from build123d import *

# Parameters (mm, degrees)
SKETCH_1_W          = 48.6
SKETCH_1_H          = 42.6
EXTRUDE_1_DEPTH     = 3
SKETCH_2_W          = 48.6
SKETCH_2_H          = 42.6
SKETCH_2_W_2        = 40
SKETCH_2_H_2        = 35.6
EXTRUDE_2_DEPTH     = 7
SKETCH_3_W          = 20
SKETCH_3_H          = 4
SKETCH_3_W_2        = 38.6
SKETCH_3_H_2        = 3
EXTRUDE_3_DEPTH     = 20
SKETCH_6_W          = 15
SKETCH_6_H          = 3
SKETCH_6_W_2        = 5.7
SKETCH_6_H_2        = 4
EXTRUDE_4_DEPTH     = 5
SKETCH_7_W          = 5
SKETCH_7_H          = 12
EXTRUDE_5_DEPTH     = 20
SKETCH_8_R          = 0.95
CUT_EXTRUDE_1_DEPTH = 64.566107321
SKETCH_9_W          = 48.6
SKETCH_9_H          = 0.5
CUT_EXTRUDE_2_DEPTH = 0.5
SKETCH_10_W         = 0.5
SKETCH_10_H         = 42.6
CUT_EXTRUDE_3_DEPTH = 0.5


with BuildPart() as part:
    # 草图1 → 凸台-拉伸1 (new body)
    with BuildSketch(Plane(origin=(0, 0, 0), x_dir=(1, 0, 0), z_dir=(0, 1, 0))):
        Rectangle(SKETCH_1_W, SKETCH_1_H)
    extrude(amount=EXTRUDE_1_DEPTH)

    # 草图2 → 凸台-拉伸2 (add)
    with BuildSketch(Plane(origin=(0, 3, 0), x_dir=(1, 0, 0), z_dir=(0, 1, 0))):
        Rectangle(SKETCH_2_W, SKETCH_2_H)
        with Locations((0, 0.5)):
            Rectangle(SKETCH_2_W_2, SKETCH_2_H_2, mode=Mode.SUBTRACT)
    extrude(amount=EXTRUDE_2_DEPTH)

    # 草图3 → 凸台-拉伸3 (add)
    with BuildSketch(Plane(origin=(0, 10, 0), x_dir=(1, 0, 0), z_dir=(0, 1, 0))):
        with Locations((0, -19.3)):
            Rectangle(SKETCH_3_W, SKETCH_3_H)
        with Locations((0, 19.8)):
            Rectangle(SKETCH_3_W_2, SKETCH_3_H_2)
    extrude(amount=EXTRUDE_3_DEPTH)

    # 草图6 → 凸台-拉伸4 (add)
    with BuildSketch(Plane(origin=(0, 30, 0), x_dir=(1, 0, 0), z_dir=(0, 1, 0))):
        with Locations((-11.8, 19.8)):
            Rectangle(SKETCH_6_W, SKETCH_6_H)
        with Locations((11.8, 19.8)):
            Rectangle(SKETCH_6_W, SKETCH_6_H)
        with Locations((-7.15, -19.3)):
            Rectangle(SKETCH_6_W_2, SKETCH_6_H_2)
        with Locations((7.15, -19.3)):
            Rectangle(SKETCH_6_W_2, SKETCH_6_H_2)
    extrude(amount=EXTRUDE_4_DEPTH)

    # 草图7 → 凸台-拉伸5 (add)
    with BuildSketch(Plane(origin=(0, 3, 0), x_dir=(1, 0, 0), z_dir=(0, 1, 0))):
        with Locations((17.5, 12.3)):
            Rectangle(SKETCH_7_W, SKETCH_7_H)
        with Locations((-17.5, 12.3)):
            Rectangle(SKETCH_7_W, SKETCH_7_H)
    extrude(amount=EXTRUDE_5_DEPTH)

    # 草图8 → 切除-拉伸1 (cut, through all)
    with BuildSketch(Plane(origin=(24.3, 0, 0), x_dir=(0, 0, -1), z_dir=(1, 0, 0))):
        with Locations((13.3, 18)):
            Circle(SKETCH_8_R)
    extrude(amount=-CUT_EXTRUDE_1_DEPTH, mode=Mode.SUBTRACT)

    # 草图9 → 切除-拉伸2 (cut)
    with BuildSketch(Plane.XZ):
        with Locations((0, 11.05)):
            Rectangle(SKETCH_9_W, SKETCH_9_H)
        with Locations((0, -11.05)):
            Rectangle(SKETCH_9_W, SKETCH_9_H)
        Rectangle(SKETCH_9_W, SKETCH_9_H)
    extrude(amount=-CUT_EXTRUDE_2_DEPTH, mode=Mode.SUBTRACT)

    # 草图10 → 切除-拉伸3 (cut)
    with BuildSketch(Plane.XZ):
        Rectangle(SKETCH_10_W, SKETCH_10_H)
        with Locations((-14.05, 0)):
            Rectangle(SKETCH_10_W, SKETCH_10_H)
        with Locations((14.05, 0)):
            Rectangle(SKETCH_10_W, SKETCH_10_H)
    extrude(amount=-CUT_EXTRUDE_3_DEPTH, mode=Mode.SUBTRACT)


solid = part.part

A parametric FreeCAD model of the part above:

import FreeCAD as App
import Part
import Sketcher

V = App.Vector


def add_polygon(sketch, points):
    """Adds a closed chain of lines whose ends are joined by coincident constraints."""
    first, n = sketch.GeometryCount, len(points)
    for a, b in zip(points, points[1:] + points[:1]):
        sketch.addGeometry(Part.LineSegment(App.Vector(*a, 0), App.Vector(*b, 0)), False)
    for i in range(n):
        sketch.addConstraint(Sketcher.Constraint("Coincident", first + i, 2, first + (i + 1) % n, 1))

doc = App.newDocument("Part")
body = doc.addObject("PartDesign::Body", "Body")

# Sketch on XZ plane
sketch1 = doc.addObject("Sketcher::SketchObject", "Sketch")
body.addObject(sketch1)
sketch1.AttachmentSupport = (doc.XZ_Plane, [""])
sketch1.MapMode = "FlatFace"
add_polygon(sketch1, [(-24, -21), (-24, 21), (24, 21), (24, -21)])  # lines 0-3
sketch1.addConstraint([
    Sketcher.Constraint("Vertical", 0),
    Sketcher.Constraint("Horizontal", 1),
    Sketcher.Constraint("Vertical", 2),
    Sketcher.Constraint("Horizontal", 3),
    Sketcher.Constraint("Symmetric", 0, 2, 2, 2, -1, 1),
    Sketcher.Constraint("DistanceX", 1, 1, 1, 2, 48.6),
    Sketcher.Constraint("DistanceY", 0, 1, 0, 2, 42.6),
])
pad1 = doc.addObject("PartDesign::Pad", "Pad")
body.addObject(pad1)
pad1.Profile = sketch1
pad1.Length = 3
pad1.Reversed = True

# Sketch on XZ plane
sketch2 = doc.addObject("Sketcher::SketchObject", "Sketch001")
body.addObject(sketch2)
sketch2.AttachmentSupport = (doc.XZ_Plane, [""])
sketch2.MapMode = "FlatFace"
sketch2.AttachmentOffset = App.Placement(V(0, 0, -3), App.Rotation())
add_polygon(sketch2, [(-24, -21), (-24, 21), (24, 21), (24, -21)])  # lines 0-3
add_polygon(sketch2, [(20, 17), (-20, 17), (-20, -18), (20, -18)])  # lines 4-7
sketch2.addConstraint([
    Sketcher.Constraint("Vertical", 0),
    Sketcher.Constraint("Horizontal", 1),
    Sketcher.Constraint("Vertical", 2),
    Sketcher.Constraint("Horizontal", 3),
    Sketcher.Constraint("Horizontal", 4),
    Sketcher.Constraint("Vertical", 5),
    Sketcher.Constraint("Horizontal", 6),
    Sketcher.Constraint("Vertical", 7),
    Sketcher.Constraint("Symmetric", 0, 2, 2, 2, -1, 1),
    Sketcher.Constraint("DistanceX", 4, 2, 4, 1, 40.0),
    Sketcher.Constraint("DistanceX", 1, 1, 1, 2, 48.6),
    Sketcher.Constraint("DistanceY", 0, 1, 0, 2, 42.6),
    Sketcher.Constraint("DistanceY", 5, 2, 5, 1, 35.6),
    Sketcher.Constraint("DistanceX", 4, 2, -1, 1, 20.0),
    Sketcher.Constraint("DistanceY", 4, 2, 0, 2, 4.0),
])
pad2 = doc.addObject("PartDesign::Pad", "Pad001")
body.addObject(pad2)
pad2.Profile = sketch2
pad2.Length = 7
pad2.Reversed = True

# Sketch on XZ plane
sketch3 = doc.addObject("Sketcher::SketchObject", "Sketch002")
body.addObject(sketch3)
sketch3.AttachmentSupport = (doc.XZ_Plane, [""])
sketch3.MapMode = "FlatFace"
sketch3.AttachmentOffset = App.Placement(V(0, 0, -10), App.Rotation())
add_polygon(sketch3, [(-10, 17.3), (-10, 21.3), (10, 21.3), (10, 17.3)])  # lines 0-3
add_polygon(sketch3, [(-19.3, -21.3), (-19.3, -18.3), (19.3, -18.3), (19.3, -21.3)])  # lines 4-7
sketch3.addConstraint([
    Sketcher.Constraint("Vertical", 0),
    Sketcher.Constraint("Horizontal", 1),
    Sketcher.Constraint("Vertical", 2),
    Sketcher.Constraint("Horizontal", 3),
    Sketcher.Constraint("Vertical", 4),
    Sketcher.Constraint("Horizontal", 5),
    Sketcher.Constraint("Vertical", 6),
    Sketcher.Constraint("Horizontal", 7),
    Sketcher.Constraint("DistanceX", 1, 1, 1, 2, 20.0),
    Sketcher.Constraint("DistanceY", 0, 1, 0, 2, 4.0),
    Sketcher.Constraint("DistanceY", 4, 1, 4, 2, 3.0),
    Sketcher.Constraint("DistanceX", 5, 1, 5, 2, 38.6),
    Sketcher.Constraint("DistanceX", 0, 2, -1, 1, 10.0),
    Sketcher.Constraint("DistanceY", -1, 1, 0, 2, 21.3),
    Sketcher.Constraint("DistanceX", 4, 2, -1, 1, 19.3),
    Sketcher.Constraint("DistanceY", 4, 2, -1, 1, 18.3),
])
pad3 = doc.addObject("PartDesign::Pad", "Pad002")
body.addObject(pad3)
pad3.Profile = sketch3
pad3.Length = 20
pad3.Reversed = True

# Sketch on XZ plane
sketch4 = doc.addObject("Sketcher::SketchObject", "Sketch003")
body.addObject(sketch4)
sketch4.AttachmentSupport = (doc.XZ_Plane, [""])
sketch4.MapMode = "FlatFace"
sketch4.AttachmentOffset = App.Placement(V(0, 0, -30), App.Rotation())
add_polygon(sketch4, [(-19.3, -21.3), (-19.3, -18.3), (-4.3, -18.3), (-4.3, -21.3)])  # lines 0-3
add_polygon(sketch4, [(4.3, -21.3), (4.3, -18.3), (19.3, -18.3), (19.3, -21.3)])  # lines 4-7
add_polygon(sketch4, [(-10, 17.3), (-10, 21.3), (-4.3, 21.3), (-4.3, 17.3)])  # lines 8-11
add_polygon(sketch4, [(4.3, 17.3), (4.3, 21.3), (10, 21.3), (10, 17.3)])  # lines 12-15
sketch4.addConstraint([
    Sketcher.Constraint("Vertical", 0),
    Sketcher.Constraint("Horizontal", 1),
    Sketcher.Constraint("Vertical", 2),
    Sketcher.Constraint("Horizontal", 3),
    Sketcher.Constraint("Vertical", 4),
    Sketcher.Constraint("Horizontal", 5),
    Sketcher.Constraint("Vertical", 6),
    Sketcher.Constraint("Horizontal", 7),
    Sketcher.Constraint("Vertical", 8),
    Sketcher.Constraint("Horizontal", 9),
    Sketcher.Constraint("Vertical", 10),
    Sketcher.Constraint("Horizontal", 11),
    Sketcher.Constraint("Vertical", 12),
    Sketcher.Constraint("Horizontal", 13),
    Sketcher.Constraint("Vertical", 14),
    Sketcher.Constraint("Horizontal", 15),
    Sketcher.Constraint("Symmetric", 7, 2, 9, 2, -1, 1),
    Sketcher.Constraint("Symmetric", 2, 2, 12, 2, -1, 1),
    Sketcher.Constraint("Symmetric", 1, 2, 4, 2, -2),
    Sketcher.Constraint("Symmetric", 3, 2, 6, 2, -2),
    Sketcher.Constraint("Symmetric", 11, 2, 14, 2, -2),
    Sketcher.Constraint("DistanceX", 1, 1, 1, 2, 15.0),
    Sketcher.Constraint("DistanceY", 0, 1, 0, 2, 3.0),
    Sketcher.Constraint("DistanceY", 8, 1, 8, 2, 4.0),
    Sketcher.Constraint("DistanceX", 9, 1, 9, 2, 5.7),
    Sketcher.Constraint("DistanceX", 8, 2, -1, 1, 10.0),
    Sketcher.Constraint("DistanceY", 0, 2, -1, 1, 18.3),
])
pad4 = doc.addObject("PartDesign::Pad", "Pad003")
body.addObject(pad4)
pad4.Profile = sketch4
pad4.Length = 5
pad4.Reversed = True

# Sketch on XZ plane
sketch5 = doc.addObject("Sketcher::SketchObject", "Sketch004")
body.addObject(sketch5)
sketch5.AttachmentSupport = (doc.XZ_Plane, [""])
sketch5.MapMode = "FlatFace"
sketch5.AttachmentOffset = App.Placement(V(0, 0, -3), App.Rotation())
add_polygon(sketch5, [(15, -18), (15, -6), (20, -6), (20, -18)])  # lines 0-3
add_polygon(sketch5, [(-20, -18), (-20, -6), (-15, -6), (-15, -18)])  # lines 4-7
sketch5.addConstraint([
    Sketcher.Constraint("Vertical", 0),
    Sketcher.Constraint("Horizontal", 1),
    Sketcher.Constraint("Vertical", 2),
    Sketcher.Constraint("Horizontal", 3),
    Sketcher.Constraint("Vertical", 4),
    Sketcher.Constraint("Horizontal", 5),
    Sketcher.Constraint("Vertical", 6),
    Sketcher.Constraint("Horizontal", 7),
    Sketcher.Constraint("Symmetric", 1, 2, 4, 2, -2),
    Sketcher.Constraint("Symmetric", 3, 2, 6, 2, -2),
    Sketcher.Constraint("DistanceX", 1, 1, 1, 2, 5.0),
    Sketcher.Constraint("DistanceY", 0, 1, 0, 2, 12.0),
    Sketcher.Constraint("DistanceX", -1, 1, 0, 2, 15.0),
    Sketcher.Constraint("DistanceY", 0, 2, -1, 1, 6.3),
])
pad5 = doc.addObject("PartDesign::Pad", "Pad004")
body.addObject(pad5)
pad5.Profile = sketch5
pad5.Length = 20
pad5.Reversed = True

# Sketch on YZ plane
sketch6 = doc.addObject("Sketcher::SketchObject", "Sketch005")
body.addObject(sketch6)
sketch6.AttachmentSupport = (doc.YZ_Plane, [""])
sketch6.MapMode = "FlatFace"
sketch6.AttachmentOffset = App.Placement(V(0, 0, 24.3), App.Rotation())
sketch6.addGeometry(Part.Circle(V(18, -13.3, 0), V(0, 0, 1), 0.9), False)
sketch6.addConstraint([
    Sketcher.Constraint("Diameter", 0, 1.9),
    Sketcher.Constraint("DistanceX", -1, 1, 0, 3, 18.0),
    Sketcher.Constraint("DistanceY", 0, 3, -1, 1, 13.3),
])
pocket1 = doc.addObject("PartDesign::Pocket", "Pocket")
body.addObject(pocket1)
pocket1.Profile = sketch6
pocket1.Type = "ThroughAll"

# Sketch on XZ plane
sketch7 = doc.addObject("Sketcher::SketchObject", "Sketch006")
body.addObject(sketch7)
sketch7.AttachmentSupport = (doc.XZ_Plane, [""])
sketch7.MapMode = "FlatFace"
add_polygon(sketch7, [(-24.3, 11.3), (-24.3, 10.8), (24.3, 10.8), (24.3, 11.3)])  # lines 0-3
add_polygon(sketch7, [(-24.3, -10.8), (-24.3, -11.3), (24.3, -11.3), (24.3, -10.8)])  # lines 4-7
add_polygon(sketch7, [(-24.3, 0.2), (-24.3, -0.2), (24.3, -0.2), (24.3, 0.2)])  # lines 8-11
sketch7.addConstraint([
    Sketcher.Constraint("Vertical", 0),
    Sketcher.Constraint("Horizontal", 1),
    Sketcher.Constraint("Vertical", 2),
    Sketcher.Constraint("Horizontal", 3),
    Sketcher.Constraint("Vertical", 4),
    Sketcher.Constraint("Horizontal", 5),
    Sketcher.Constraint("Vertical", 6),
    Sketcher.Constraint("Horizontal", 7),
    Sketcher.Constraint("Vertical", 8),
    Sketcher.Constraint("Horizontal", 9),
    Sketcher.Constraint("Vertical", 10),
    Sketcher.Constraint("Horizontal", 11),
    Sketcher.Constraint("Symmetric", 2, 2, 4, 2, -1, 1),
    Sketcher.Constraint("Symmetric", 0, 2, 6, 2, -1, 1),
    Sketcher.Constraint("Symmetric", 8, 2, 10, 2, -1, 1),
    Sketcher.Constraint("Vertical", 3, 2, 4, 2),
    Sketcher.Constraint("Vertical", 7, 2, 8, 2),
    Sketcher.Constraint("Equal", 6, 8),
    Sketcher.Constraint("DistanceX", 1, 1, 1, 2, 48.6),
    Sketcher.Constraint("DistanceY", 0, 2, 0, 1, 0.5),
    Sketcher.Constraint("DistanceY", -1, 1, 0, 2, 10.8),
])
pocket2 = doc.addObject("PartDesign::Pocket", "Pocket001")
body.addObject(pocket2)
pocket2.Profile = sketch7
pocket2.Length = 0.5

# Sketch on XZ plane
sketch8 = doc.addObject("Sketcher::SketchObject", "Sketch007")
body.addObject(sketch8)
sketch8.AttachmentSupport = (doc.XZ_Plane, [""])
sketch8.MapMode = "FlatFace"
add_polygon(sketch8, [(-0.2, 21.3), (-0.2, -21.3), (0.2, -21.3), (0.2, 21.3)])  # lines 0-3
add_polygon(sketch8, [(-14.3, 21.3), (-14.3, -21.3), (-13.8, -21.3), (-13.8, 21.3)])  # lines 4-7
add_polygon(sketch8, [(13.8, 21.3), (13.8, -21.3), (14.3, -21.3), (14.3, 21.3)])  # lines 8-11
sketch8.addConstraint([
    Sketcher.Constraint("Vertical", 0),
    Sketcher.Constraint("Horizontal", 1),
    Sketcher.Constraint("Vertical", 2),
    Sketcher.Constraint("Horizontal", 3),
    Sketcher.Constraint("Vertical", 4),
    Sketcher.Constraint("Horizontal", 5),
    Sketcher.Constraint("Vertical", 6),
    Sketcher.Constraint("Horizontal", 7),
    Sketcher.Constraint("Vertical", 8),
    Sketcher.Constraint("Horizontal", 9),
    Sketcher.Constraint("Vertical", 10),
    Sketcher.Constraint("Horizontal", 11),
    Sketcher.Constraint("Symmetric", 0, 2, 2, 2, -1, 1),
    Sketcher.Constraint("Symmetric", 6, 2, 8, 2, -1, 1),
    Sketcher.Constraint("Symmetric", 4, 2, 10, 2, -1, 1),
    Sketcher.Constraint("Horizontal", 1, 2, 4, 2),
    Sketcher.Constraint("Horizontal", 3, 2, 6, 2),
    Sketcher.Constraint("Equal", 3, 5),
    Sketcher.Constraint("DistanceX", 1, 1, 1, 2, 0.5),
    Sketcher.Constraint("DistanceY", 0, 2, 0, 1, 42.6),
    Sketcher.Constraint("DistanceX", 4, 2, -1, 1, 14.3),
])
pocket3 = doc.addObject("PartDesign::Pocket", "Pocket002")
body.addObject(pocket3)
pocket3.Profile = sketch8
pocket3.Length = 0.5

doc.recompute()
